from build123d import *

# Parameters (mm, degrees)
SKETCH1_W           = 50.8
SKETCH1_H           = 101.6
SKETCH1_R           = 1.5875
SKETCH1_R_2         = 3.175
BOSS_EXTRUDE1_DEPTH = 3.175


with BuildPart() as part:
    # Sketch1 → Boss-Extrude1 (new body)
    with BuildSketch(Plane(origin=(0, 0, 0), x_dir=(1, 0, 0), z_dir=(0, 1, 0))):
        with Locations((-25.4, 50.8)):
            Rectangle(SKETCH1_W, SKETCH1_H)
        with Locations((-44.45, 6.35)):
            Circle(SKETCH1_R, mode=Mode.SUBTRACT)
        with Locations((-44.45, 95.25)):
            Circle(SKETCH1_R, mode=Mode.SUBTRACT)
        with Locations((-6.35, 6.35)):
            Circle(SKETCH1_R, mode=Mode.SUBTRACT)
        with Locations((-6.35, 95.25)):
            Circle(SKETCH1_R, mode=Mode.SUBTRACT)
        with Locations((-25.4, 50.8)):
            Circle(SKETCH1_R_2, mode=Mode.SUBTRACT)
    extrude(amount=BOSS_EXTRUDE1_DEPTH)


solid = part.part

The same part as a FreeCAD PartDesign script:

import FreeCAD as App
import Part
import Sketcher

V = App.Vector
Q = App.Units.Quantity


def add_polygon(sketch, points):
    """Adds a closed chain of lines whose ends are joined by coincident constraints."""
    first, n = sketch.GeometryCount, len(points)
    for a, b in zip(points, points[1:] + points[:1]):
        sketch.addGeometry(Part.LineSegment(App.Vector(*a, 0), App.Vector(*b, 0)), False)
    for i in range(n):
        sketch.addConstraint(Sketcher.Constraint("Coincident", first + i, 2, first + (i + 1) % n, 1))

doc = App.newDocument("Part")
body = doc.addObject("PartDesign::Body", "Body")

sketch1 = doc.addObject("Sketcher::SketchObject", "Sketch")
body.addObject(sketch1)
sketch1.AttachmentSupport = (doc.XZ_Plane, [""])
sketch1.MapMode = "FlatFace"
add_polygon(sketch1, [(-50.8, -101.6), (-50.8, 0), (0, 0), (0, -101.6)])
sketch1.addGeometry(Part.Circle(V(-44.5, -6.3, 0), V(0, 0, 1), 1.6), False)
sketch1.addGeometry(Part.Circle(V(-6.3, -6.3, 0), V(0, 0, 1), 1.6), False)
sketch1.addGeometry(Part.Circle(V(-44.5, -95.2, 0), V(0, 0, 1), 1.6), False)
sketch1.addGeometry(Part.Circle(V(-25.4, -50.8, 0), V(0, 0, 1), 3.2), False)
sketch1.addGeometry(Part.Circle(V(-6.3, -95.2, 0), V(0, 0, 1), 1.6), False)
sketch1.addConstraint([
    Sketcher.Constraint("Vertical", 0),
    Sketcher.Constraint("Horizontal", 1),
    Sketcher.Constraint("Vertical", 2),
    Sketcher.Constraint("Horizontal", 3),
    Sketcher.Constraint("Coincident", 1, 2, -1, 1),
    Sketcher.Constraint("Equal", 4, 5),
    Sketcher.Constraint("Equal", 5, 6),
    Sketcher.Constraint("Equal", 6, 8),
    Sketcher.Constraint("Horizontal", 4, 3, 5, 3),
    Sketcher.Constraint("Horizontal", 6, 3, 8, 3),
    Sketcher.Constraint("Vertical", 4, 3, 6, 3),
    Sketcher.Constraint("Vertical", 5, 3, 8, 3),
    Sketcher.Constraint("Diameter", 7, Q("0.25 in")),
    Sketcher.Constraint("DistanceX", 1, 1, 1, 2, Q("2 in")),
    Sketcher.Constraint("DistanceY", 0, 1, 0, 2, Q("4 in")),
    Sketcher.Constraint("Diameter", 4, Q("0.125 in")),
    Sketcher.Constraint("DistanceX", 7, 3, -1, 1, Q("1 in")),
    Sketcher.Constraint("DistanceY", 7, 3, -1, 1, Q("2 in")),
    Sketcher.Constraint("DistanceX", 4, 3, 5, 3, Q("1.5 in")),
    Sketcher.Constraint("DistanceY", 6, 3, 4, 3, Q("3.5 in")),
    Sketcher.Constraint("DistanceX", 4, 3, -1, 1, Q("1.75 in")),
    Sketcher.Constraint("DistanceY", 4, 3, -1, 1, Q("0.25 in")),
])
pad1 = doc.addObject("PartDesign::Pad", "Pad")
body.addObject(pad1)
pad1.Profile = sketch1
pad1.Length = Q("0.125 in")
pad1.Reversed = True

doc.recompute()
